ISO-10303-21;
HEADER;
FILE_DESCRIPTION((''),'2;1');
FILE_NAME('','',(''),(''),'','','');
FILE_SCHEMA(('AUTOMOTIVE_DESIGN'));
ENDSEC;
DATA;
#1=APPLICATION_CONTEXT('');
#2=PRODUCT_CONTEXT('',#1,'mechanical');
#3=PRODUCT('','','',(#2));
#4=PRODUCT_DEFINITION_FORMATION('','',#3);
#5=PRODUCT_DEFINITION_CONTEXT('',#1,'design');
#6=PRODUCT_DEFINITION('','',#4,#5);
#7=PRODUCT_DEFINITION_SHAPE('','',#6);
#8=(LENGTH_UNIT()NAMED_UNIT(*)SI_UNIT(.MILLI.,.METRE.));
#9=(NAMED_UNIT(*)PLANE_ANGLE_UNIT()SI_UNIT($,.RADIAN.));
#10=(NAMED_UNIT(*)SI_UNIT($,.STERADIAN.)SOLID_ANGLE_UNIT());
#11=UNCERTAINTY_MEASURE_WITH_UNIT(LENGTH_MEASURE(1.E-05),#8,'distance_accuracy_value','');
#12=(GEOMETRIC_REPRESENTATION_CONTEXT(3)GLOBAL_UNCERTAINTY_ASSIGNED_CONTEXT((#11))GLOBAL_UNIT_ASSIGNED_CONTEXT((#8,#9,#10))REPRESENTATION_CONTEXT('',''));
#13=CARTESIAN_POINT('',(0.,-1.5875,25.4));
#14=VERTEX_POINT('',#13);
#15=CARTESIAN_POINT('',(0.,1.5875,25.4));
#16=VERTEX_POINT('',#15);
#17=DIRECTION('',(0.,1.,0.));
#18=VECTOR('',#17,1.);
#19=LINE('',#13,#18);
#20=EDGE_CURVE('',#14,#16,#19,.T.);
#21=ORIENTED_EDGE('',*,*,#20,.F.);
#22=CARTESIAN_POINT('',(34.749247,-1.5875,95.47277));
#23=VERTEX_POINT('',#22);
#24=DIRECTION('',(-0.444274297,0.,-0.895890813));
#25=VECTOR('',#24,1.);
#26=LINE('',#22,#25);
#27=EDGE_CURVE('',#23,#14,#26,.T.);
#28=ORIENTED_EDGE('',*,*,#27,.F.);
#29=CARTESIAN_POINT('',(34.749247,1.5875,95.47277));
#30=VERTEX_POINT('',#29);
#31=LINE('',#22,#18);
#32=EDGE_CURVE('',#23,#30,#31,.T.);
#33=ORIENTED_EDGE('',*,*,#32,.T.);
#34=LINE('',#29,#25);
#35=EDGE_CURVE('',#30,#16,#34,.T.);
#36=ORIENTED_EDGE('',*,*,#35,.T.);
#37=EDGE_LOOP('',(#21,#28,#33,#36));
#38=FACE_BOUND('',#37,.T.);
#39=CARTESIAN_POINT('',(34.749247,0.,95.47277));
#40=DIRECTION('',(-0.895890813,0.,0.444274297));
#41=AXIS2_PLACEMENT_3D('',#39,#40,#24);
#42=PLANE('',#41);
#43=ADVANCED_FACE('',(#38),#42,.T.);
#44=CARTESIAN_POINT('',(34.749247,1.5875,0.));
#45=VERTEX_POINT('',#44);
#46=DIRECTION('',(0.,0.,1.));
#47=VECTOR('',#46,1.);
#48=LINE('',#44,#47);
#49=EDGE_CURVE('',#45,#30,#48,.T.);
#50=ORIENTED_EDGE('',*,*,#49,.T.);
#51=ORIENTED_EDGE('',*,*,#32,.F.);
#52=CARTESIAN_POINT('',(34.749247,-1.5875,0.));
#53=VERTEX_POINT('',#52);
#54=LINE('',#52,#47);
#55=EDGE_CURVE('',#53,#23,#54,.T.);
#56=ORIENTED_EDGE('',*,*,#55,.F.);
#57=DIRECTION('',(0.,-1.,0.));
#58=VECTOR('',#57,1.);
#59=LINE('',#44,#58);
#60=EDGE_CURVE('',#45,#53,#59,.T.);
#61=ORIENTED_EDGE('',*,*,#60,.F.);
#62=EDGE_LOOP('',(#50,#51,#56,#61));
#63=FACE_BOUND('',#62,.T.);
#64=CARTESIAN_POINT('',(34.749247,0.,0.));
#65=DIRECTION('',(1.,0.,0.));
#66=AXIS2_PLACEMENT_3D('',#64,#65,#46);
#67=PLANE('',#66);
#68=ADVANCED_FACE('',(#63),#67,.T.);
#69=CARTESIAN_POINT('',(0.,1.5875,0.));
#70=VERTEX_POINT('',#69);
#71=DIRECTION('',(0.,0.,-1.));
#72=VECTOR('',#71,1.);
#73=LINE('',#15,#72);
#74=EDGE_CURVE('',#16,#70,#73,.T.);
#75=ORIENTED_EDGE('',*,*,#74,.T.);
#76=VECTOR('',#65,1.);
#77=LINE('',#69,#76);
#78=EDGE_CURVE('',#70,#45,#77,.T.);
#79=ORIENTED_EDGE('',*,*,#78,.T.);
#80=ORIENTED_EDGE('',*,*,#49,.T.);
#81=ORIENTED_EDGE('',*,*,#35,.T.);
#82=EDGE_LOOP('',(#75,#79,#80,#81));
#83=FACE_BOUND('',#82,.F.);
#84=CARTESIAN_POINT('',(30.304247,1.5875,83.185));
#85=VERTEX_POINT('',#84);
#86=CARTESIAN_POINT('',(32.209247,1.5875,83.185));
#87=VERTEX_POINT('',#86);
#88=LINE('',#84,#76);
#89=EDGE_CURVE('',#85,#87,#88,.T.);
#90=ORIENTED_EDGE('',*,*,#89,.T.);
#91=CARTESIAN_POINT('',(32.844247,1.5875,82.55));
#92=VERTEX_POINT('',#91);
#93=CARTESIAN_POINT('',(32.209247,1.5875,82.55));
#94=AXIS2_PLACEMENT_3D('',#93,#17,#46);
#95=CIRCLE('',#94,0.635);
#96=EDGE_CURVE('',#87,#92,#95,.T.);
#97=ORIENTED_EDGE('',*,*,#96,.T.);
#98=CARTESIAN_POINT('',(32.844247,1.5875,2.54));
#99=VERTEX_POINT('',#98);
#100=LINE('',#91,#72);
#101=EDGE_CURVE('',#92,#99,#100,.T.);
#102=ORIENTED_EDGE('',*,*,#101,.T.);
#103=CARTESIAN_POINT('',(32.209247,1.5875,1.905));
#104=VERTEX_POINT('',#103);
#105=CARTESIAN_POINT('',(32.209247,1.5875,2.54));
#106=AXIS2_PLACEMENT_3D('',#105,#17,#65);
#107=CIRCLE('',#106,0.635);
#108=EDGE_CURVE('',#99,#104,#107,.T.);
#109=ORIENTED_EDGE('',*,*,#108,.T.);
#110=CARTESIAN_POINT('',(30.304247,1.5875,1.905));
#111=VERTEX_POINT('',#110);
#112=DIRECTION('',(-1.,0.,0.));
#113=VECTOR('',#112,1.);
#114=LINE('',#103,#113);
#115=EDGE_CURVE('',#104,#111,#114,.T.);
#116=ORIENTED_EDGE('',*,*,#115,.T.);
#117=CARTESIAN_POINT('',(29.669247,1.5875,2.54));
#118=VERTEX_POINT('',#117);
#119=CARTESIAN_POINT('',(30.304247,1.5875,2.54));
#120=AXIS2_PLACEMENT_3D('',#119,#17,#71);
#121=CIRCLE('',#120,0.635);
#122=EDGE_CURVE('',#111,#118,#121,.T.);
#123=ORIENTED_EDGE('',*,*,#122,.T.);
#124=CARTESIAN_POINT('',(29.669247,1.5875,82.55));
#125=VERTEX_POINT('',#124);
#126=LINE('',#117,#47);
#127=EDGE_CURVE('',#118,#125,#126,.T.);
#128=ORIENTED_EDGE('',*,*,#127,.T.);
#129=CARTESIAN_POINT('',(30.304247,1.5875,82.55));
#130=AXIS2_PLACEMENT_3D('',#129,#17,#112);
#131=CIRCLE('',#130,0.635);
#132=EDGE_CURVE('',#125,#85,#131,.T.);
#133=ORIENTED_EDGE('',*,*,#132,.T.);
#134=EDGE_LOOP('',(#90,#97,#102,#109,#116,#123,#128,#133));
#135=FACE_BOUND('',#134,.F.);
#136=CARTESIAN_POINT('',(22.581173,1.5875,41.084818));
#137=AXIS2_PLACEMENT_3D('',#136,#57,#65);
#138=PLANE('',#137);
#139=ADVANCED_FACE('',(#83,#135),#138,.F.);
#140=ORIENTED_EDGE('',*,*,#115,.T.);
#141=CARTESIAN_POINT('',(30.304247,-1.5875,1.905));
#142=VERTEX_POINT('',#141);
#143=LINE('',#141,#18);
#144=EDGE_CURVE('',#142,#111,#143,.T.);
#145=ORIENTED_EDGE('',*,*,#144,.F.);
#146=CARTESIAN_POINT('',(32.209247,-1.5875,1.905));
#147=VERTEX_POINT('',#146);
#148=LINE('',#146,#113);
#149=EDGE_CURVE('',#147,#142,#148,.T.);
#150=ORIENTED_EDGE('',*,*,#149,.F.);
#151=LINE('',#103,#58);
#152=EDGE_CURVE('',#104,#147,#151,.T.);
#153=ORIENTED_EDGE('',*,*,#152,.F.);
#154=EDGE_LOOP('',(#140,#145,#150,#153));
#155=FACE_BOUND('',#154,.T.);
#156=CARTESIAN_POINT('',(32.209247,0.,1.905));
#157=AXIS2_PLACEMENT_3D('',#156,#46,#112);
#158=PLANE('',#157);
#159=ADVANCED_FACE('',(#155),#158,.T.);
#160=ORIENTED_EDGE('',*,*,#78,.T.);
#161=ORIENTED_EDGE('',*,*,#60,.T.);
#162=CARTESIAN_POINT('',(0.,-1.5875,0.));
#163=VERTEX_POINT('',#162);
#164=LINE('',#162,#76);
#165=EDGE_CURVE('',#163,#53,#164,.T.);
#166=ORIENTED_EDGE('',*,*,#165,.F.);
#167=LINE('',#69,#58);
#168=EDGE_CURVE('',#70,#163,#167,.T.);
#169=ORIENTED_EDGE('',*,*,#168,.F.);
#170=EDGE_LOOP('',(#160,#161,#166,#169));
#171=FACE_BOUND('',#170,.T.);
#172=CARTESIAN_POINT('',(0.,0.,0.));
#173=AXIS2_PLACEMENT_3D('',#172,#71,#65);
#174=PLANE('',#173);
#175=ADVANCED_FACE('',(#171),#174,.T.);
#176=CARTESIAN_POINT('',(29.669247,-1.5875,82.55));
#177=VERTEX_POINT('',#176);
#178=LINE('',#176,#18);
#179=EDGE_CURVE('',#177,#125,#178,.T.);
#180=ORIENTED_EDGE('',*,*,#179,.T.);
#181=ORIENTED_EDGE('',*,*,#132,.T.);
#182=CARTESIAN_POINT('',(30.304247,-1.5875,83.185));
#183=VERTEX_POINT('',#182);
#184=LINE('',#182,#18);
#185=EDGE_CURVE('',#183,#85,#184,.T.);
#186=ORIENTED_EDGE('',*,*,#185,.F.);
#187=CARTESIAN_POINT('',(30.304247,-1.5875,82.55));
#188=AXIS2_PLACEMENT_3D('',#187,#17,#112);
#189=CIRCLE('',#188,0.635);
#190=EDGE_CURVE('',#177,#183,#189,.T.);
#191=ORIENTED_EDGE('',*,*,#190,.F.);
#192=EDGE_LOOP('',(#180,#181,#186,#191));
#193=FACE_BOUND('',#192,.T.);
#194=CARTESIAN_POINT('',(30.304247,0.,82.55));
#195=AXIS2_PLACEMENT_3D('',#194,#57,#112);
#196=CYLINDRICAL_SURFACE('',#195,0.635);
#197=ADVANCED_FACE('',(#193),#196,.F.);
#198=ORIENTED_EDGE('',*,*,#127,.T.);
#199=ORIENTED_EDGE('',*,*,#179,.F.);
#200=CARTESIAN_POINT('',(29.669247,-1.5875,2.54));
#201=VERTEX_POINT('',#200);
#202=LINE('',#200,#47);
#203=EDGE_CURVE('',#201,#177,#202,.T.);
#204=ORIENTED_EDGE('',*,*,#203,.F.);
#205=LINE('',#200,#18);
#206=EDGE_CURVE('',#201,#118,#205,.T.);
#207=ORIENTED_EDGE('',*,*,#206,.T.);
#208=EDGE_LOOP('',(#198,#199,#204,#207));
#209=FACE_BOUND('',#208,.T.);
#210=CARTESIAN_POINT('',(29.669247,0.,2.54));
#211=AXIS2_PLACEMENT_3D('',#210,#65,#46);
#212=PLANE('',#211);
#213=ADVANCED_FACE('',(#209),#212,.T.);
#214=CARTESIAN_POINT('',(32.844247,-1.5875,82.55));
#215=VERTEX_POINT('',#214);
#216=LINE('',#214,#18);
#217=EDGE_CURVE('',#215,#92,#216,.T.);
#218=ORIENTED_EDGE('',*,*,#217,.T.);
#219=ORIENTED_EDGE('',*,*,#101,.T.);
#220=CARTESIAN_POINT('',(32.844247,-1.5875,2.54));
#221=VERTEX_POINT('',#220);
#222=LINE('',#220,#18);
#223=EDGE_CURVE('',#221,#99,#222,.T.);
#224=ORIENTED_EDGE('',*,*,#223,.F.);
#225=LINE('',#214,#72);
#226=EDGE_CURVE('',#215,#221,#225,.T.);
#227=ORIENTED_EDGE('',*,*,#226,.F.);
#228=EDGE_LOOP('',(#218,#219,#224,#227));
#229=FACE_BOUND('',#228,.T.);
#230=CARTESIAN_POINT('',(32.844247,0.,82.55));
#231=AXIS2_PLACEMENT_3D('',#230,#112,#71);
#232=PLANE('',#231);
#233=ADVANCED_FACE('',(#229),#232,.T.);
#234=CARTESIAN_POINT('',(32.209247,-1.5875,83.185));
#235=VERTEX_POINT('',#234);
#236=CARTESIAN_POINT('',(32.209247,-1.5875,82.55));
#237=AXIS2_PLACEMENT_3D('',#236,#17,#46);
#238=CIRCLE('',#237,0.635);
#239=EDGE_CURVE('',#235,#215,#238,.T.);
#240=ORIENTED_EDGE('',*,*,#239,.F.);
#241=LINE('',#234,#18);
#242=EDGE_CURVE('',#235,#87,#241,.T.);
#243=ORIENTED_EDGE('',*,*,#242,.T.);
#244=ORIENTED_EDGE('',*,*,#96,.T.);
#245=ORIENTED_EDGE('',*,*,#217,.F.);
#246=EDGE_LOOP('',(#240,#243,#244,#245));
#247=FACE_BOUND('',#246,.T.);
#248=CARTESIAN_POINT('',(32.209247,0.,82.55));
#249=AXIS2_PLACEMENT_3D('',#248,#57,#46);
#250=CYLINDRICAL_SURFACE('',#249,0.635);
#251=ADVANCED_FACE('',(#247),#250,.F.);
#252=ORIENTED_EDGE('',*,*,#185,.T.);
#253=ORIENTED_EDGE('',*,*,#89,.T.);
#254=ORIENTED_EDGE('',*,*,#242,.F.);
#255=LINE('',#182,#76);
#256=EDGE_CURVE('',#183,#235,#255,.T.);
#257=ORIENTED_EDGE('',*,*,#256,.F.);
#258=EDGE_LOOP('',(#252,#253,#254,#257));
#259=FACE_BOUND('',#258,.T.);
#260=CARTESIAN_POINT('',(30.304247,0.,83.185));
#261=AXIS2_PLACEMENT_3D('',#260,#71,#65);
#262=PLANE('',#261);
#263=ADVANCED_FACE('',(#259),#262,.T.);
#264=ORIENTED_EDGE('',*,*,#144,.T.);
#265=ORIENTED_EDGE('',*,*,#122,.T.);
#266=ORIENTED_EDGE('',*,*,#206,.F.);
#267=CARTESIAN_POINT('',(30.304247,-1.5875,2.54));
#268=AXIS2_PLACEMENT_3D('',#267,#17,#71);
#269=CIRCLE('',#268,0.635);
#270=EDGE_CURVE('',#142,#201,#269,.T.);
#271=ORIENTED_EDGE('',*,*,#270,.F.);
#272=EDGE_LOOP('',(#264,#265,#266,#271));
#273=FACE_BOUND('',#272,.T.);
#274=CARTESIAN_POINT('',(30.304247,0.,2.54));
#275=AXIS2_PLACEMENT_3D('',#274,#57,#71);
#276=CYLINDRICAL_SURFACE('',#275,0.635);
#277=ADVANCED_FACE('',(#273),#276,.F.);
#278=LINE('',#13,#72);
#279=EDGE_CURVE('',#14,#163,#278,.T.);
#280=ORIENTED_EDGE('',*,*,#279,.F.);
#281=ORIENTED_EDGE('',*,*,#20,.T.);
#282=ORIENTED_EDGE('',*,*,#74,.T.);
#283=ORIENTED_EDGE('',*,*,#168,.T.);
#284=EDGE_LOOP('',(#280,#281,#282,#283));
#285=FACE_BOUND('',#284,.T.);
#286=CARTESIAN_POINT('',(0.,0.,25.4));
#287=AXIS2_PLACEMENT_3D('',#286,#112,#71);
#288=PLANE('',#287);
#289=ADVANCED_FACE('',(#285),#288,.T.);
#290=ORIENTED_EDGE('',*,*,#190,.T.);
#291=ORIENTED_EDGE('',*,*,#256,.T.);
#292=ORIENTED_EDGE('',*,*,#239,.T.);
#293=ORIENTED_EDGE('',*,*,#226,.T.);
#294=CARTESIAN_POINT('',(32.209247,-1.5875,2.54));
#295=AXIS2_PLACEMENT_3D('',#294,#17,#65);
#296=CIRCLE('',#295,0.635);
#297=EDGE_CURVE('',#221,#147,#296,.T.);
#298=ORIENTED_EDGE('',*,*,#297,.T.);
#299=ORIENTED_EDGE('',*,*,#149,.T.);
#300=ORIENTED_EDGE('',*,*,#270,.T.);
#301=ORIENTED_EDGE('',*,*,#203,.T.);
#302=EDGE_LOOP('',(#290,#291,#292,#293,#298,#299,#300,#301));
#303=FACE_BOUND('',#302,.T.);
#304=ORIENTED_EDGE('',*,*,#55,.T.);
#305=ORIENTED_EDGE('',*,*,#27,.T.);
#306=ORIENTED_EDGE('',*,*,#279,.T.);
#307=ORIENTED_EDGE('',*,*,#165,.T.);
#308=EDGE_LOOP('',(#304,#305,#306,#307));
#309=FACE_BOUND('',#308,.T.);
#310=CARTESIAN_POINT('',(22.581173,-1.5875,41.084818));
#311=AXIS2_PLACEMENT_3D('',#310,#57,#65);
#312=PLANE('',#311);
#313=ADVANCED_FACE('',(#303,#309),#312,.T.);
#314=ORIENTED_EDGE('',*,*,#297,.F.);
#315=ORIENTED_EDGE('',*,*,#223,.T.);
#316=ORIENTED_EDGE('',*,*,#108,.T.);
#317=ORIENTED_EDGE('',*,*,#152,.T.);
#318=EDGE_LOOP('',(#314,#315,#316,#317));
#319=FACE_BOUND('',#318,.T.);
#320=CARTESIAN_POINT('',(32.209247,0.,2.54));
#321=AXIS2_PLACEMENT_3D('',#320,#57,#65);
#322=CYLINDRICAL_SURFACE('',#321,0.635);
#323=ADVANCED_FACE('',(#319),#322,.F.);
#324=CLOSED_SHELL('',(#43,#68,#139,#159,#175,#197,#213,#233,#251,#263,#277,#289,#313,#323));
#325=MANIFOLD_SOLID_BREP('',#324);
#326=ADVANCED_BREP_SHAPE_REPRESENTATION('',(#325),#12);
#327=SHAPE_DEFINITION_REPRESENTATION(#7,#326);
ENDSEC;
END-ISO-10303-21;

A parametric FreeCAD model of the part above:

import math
import FreeCAD as App
import Part
import Sketcher

V = App.Vector
Q = App.Units.Quantity

doc = App.newDocument("Part")
body = doc.addObject("PartDesign::Body", "Body")

sketch1 = body.newObject("Sketcher::SketchObject", "Sketch")
sketch1.AttachmentSupport = (doc.getObject("XZ_Plane"), [""])
sketch1.MapMode = "FlatFace"
sketch1.addGeometry(Part.LineSegment(V(0, 25.4, 0), V(0, 0, 0)), False)
sketch1.addGeometry(Part.LineSegment(V(0, 0, 0), V(34.749247, 0, 0)), False)
sketch1.addGeometry(Part.LineSegment(V(34.749247, 0, 0), V(34.749247, 95.47277, 0)), False)
sketch1.addGeometry(Part.LineSegment(V(34.749247, 95.47277, 0), V(0, 25.4, 0)), False)
sketch1.addGeometry(Part.ArcOfCircle(Part.Circle(V(32.209247, 2.54, 0), V(0, 0, 1), 0.635), math.radians(-90), math.radians(0)), False)
sketch1.addGeometry(Part.LineSegment(V(32.209247, 1.905, 0), V(30.304247, 1.905, 0)), False)
sketch1.addGeometry(Part.ArcOfCircle(Part.Circle(V(30.304247, 2.54, 0), V(0, 0, 1), 0.635), math.radians(180), math.radians(270)), False)
sketch1.addGeometry(Part.LineSegment(V(29.669247, 2.54, 0), V(29.669247, 82.55, 0)), False)
sketch1.addGeometry(Part.ArcOfCircle(Part.Circle(V(30.304247, 82.55, 0), V(0, 0, 1), 0.635), math.radians(90), math.radians(180)), False)
sketch1.addGeometry(Part.LineSegment(V(30.304247, 83.185, 0), V(32.209247, 83.185, 0)), False)
sketch1.addGeometry(Part.ArcOfCircle(Part.Circle(V(32.209247, 82.55, 0), V(0, 0, 1), 0.635), math.radians(0), math.radians(90)), False)
sketch1.addGeometry(Part.LineSegment(V(32.844247, 82.55, 0), V(32.844247, 2.54, 0)), False)
sketch1.addConstraint(Sketcher.Constraint("Coincident", 0, 2, 1, 1))
sketch1.addConstraint(Sketcher.Constraint("Coincident", 1, 2, 2, 1))
sketch1.addConstraint(Sketcher.Constraint("Coincident", 2, 2, 3, 1))
sketch1.addConstraint(Sketcher.Constraint("Coincident", 3, 2, 0, 1))
sketch1.addConstraint(Sketcher.Constraint("Tangent", 4, 1, 5, 1))
sketch1.addConstraint(Sketcher.Constraint("Tangent", 5, 2, 6, 2))
sketch1.addConstraint(Sketcher.Constraint("Tangent", 6, 1, 7, 1))
sketch1.addConstraint(Sketcher.Constraint("Tangent", 7, 2, 8, 2))
sketch1.addConstraint(Sketcher.Constraint("Tangent", 8, 1, 9, 1))
sketch1.addConstraint(Sketcher.Constraint("Tangent", 9, 2, 10, 2))
sketch1.addConstraint(Sketcher.Constraint("Tangent", 10, 1, 11, 1))
sketch1.addConstraint(Sketcher.Constraint("Tangent", 11, 2, 4, 2))
sketch1.addConstraint(Sketcher.Constraint("Vertical", 0))
sketch1.addConstraint(Sketcher.Constraint("Horizontal", 1))
sketch1.addConstraint(Sketcher.Constraint("Vertical", 2))
sketch1.addConstraint(Sketcher.Constraint("Horizontal", 5))
sketch1.addConstraint(Sketcher.Constraint("Vertical", 7))
sketch1.addConstraint(Sketcher.Constraint("Horizontal", 9))
sketch1.addConstraint(Sketcher.Constraint("Vertical", 11))
sketch1.addConstraint(Sketcher.Constraint("Coincident", 0, 2, -1, 1))
sketch1.addConstraint(Sketcher.Constraint("Equal", 4, 6))
sketch1.addConstraint(Sketcher.Constraint("Equal", 6, 8))
sketch1.addConstraint(Sketcher.Constraint("Equal", 8, 10))
sketch1.addConstraint(Sketcher.Constraint("DistanceY", 0, 2, 0, 1, Q("1 in")))
sketch1.addConstraint(Sketcher.Constraint("Radius", 4, Q("0.025 in")))
sketch1.addConstraint(Sketcher.Constraint("DistanceY", 7, 1, 7, 2, Q("3.15 in")))
sketch1.addConstraint(Sketcher.Constraint("DistanceY", -1, 1, 4, 3, Q("0.1 in")))
sketch1.addConstraint(Sketcher.Constraint("DistanceX", 4, 3, 1, 2, Q("0.1 in")))
sketch1.addConstraint(Sketcher.Constraint("DistanceX", 6, 1, 4, 3, Q("0.1 in")))
sketch1.addConstraint(Sketcher.Constraint("DistanceY", 2, 1, 2, 2, Q("95.47277 mm")))
sketch1.addConstraint(Sketcher.Constraint("Distance", 3, Q("78.215748 mm")))
pad1 = body.newObject("PartDesign::Pad", "Pad")
pad1.Profile = sketch1
pad1.Length = Q("0.125 in")
pad1.Midplane = True

doc.recompute()
